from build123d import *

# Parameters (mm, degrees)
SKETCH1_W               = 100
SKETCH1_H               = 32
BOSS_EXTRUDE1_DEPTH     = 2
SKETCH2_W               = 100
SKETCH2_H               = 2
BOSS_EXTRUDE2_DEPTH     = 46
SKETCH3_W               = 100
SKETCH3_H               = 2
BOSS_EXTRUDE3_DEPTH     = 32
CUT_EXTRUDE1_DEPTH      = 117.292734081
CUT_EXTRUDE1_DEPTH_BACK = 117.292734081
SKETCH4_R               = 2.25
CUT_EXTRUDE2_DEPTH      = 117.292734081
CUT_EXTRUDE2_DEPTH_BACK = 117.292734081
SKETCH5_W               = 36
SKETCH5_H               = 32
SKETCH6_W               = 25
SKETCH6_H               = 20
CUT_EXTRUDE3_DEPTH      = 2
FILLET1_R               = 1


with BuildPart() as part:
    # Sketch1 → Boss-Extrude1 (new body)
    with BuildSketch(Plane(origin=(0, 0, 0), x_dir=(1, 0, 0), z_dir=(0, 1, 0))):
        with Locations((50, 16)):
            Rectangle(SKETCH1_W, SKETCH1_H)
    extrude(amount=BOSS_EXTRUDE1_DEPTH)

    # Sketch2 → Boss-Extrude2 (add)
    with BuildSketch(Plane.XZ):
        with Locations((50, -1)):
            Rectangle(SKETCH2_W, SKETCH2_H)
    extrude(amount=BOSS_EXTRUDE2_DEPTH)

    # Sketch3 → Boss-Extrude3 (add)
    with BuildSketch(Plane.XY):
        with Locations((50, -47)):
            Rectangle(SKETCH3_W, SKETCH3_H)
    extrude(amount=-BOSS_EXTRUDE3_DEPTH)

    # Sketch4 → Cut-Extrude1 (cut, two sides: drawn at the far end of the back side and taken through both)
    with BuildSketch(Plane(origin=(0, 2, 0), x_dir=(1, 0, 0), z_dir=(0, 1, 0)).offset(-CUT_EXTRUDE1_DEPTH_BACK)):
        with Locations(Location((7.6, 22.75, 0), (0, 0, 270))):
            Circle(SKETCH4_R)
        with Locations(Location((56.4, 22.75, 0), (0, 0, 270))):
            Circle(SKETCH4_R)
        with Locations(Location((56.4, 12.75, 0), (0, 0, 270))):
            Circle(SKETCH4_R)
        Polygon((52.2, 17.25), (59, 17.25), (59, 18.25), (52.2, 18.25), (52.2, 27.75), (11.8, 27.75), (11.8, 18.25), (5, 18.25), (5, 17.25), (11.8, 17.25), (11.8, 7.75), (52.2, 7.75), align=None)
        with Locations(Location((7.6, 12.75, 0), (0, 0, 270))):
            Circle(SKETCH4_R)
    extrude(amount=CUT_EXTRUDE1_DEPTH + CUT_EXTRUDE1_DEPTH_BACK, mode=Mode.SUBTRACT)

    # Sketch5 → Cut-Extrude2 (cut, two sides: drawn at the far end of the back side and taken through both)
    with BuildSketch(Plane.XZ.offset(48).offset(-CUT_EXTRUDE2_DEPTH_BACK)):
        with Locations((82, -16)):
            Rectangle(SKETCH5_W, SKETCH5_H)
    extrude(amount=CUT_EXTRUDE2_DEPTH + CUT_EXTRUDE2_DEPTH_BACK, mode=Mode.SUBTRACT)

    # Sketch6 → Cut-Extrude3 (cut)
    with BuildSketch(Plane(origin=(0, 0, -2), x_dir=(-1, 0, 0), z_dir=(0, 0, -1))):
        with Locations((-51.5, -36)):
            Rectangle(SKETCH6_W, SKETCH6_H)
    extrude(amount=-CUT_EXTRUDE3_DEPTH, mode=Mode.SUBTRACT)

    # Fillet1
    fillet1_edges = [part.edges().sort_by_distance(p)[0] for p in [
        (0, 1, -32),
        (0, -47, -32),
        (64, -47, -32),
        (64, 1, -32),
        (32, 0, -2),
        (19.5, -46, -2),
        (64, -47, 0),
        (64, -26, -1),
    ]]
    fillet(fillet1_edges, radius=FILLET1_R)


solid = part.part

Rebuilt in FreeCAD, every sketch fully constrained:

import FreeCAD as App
import Part
import Sketcher
from FreeCAD import Vector
Q = App.Units.Quantity


def edges_at(feature, points):
    """Names of the edges that pass closest to the given points."""
    edges = feature.Shape.Edges
    near = lambda p: min(range(len(edges)), key=lambda i: edges[i].distToShape(Part.Vertex(*p))[0])
    return sorted({f"Edge{near(p) + 1}" for p in points})


def add_polygon(sketch, points):
    """Adds a closed chain of lines whose ends are joined by coincident constraints."""
    first, n = sketch.GeometryCount, len(points)
    for a, b in zip(points, points[1:] + points[:1]):
        sketch.addGeometry(Part.LineSegment(App.Vector(*a, 0), App.Vector(*b, 0)), False)
    for i in range(n):
        sketch.addConstraint(Sketcher.Constraint("Coincident", first + i, 2, first + (i + 1) % n, 1))

doc = App.newDocument("Part")
params = doc.addObject("Spreadsheet::Sheet", "Params")
for row, (alias, value) in enumerate([
    ("sketch1_width", "100 mm"),
    ("sketch1_height", "32 mm"),
    ("pad1_length", "2 mm"),
    ("sketch2_width", "100 mm"),
    ("sketch2_height", "2 mm"),
    ("pad2_length", "46 mm"),
    ("sketch3_width", "100 mm"),
    ("sketch3_height", "2 mm"),
    ("pad3_length", "32 mm"),
    ("sketch4_diameter", "4.5 mm"),
    ("sketch4_height", "1 mm"),
    ("sketch4_width", "6.8 mm"),
    ("sketch4_width2", "40.4 mm"),
    ("sketch4_height2", "9.5 mm"),
    ("sketch5_width", "36 mm"),
    ("sketch5_height", "32 mm"),
    ("sketch6_width", "25 mm"),
    ("sketch6_height", "20 mm"),
    ("pocket3_length", "2 mm"),
    ("fillet_radius", "1 mm"),
], start=1):
    params.set(f"A{row}", alias)
    params.set(f"B{row}", "=" + value)
    params.setAlias(f"B{row}", alias)

body = doc.addObject("PartDesign::Body", "Body")

sketch1 = doc.addObject("Sketcher::SketchObject", "Sketch")
body.addObject(sketch1)
sketch1.AttachmentSupport = (doc.XZ_Plane, [""])
sketch1.MapMode = "FlatFace"
add_polygon(sketch1, [(0, -32), (0, 0), (100, 0), (100, -32)])
sketch1.addConstraint([
    Sketcher.Constraint("Vertical", 0),
    Sketcher.Constraint("Horizontal", 1),
    Sketcher.Constraint("Vertical", 2),
    Sketcher.Constraint("Horizontal", 3),
    Sketcher.Constraint("Coincident", 0, 2, -1, 1),
    Sketcher.Constraint("DistanceX", 1, 1, 1, 2, Q("100 mm")),
    Sketcher.Constraint("DistanceY", 0, 1, 0, 2, Q("32 mm")),
])
sketch1.setExpression("Constraints[9]", "Params.sketch1_width")
sketch1.setExpression("Constraints[10]", "Params.sketch1_height")
pad1 = doc.addObject("PartDesign::Pad", "Pad")
body.addObject(pad1)
pad1.Profile = sketch1
pad1.setExpression("Length", "Params.pad1_length")
pad1.Reversed = True

sketch2 = doc.addObject("Sketcher::SketchObject", "Sketch001")
body.addObject(sketch2)
sketch2.AttachmentSupport = (doc.XZ_Plane, [""])
sketch2.MapMode = "FlatFace"
add_polygon(sketch2, [(0, 0), (0, -2), (100, -2), (100, 0)])
sketch2.addConstraint([
    Sketcher.Constraint("Vertical", 0),
    Sketcher.Constraint("Horizontal", 1),
    Sketcher.Constraint("Vertical", 2),
    Sketcher.Constraint("Horizontal", 3),
    Sketcher.Constraint("Coincident", 3, 2, -1, 1),
    Sketcher.Constraint("DistanceX", 1, 1, 1, 2, Q("100 mm")),
    Sketcher.Constraint("DistanceY", 0, 2, 0, 1, Q("2 mm")),
])
sketch2.setExpression("Constraints[9]", "Params.sketch2_width")
sketch2.setExpression("Constraints[10]", "Params.sketch2_height")
pad2 = doc.addObject("PartDesign::Pad", "Pad001")
body.addObject(pad2)
pad2.Profile = sketch2
pad2.setExpression("Length", "Params.pad2_length")

sketch3 = doc.addObject("Sketcher::SketchObject", "Sketch002")
body.addObject(sketch3)
sketch3.AttachmentSupport = (doc.XY_Plane, [""])
sketch3.MapMode = "FlatFace"
add_polygon(sketch3, [(0, -46), (0, -48), (100, -48), (100, -46)])
sketch3.addConstraint([
    Sketcher.Constraint("Vertical", 0),
    Sketcher.Constraint("Horizontal", 1),
    Sketcher.Constraint("Vertical", 2),
    Sketcher.Constraint("Horizontal", 3),
    Sketcher.Constraint("PointOnObject", 0, 2, -2),
    Sketcher.Constraint("DistanceX", 1, 1, 1, 2, Q("100 mm")),
    Sketcher.Constraint("DistanceY", 0, 2, 0, 1, Q("2 mm")),
    Sketcher.Constraint("DistanceY", 0, 2, -1, 1, Q("48 mm")),
])
sketch3.setExpression("Constraints[9]", "Params.sketch3_width")
sketch3.setExpression("Constraints[10]", "Params.sketch3_height")
pad3 = doc.addObject("PartDesign::Pad", "Pad002")
body.addObject(pad3)
pad3.Profile = sketch3
pad3.setExpression("Length", "Params.pad3_length")
pad3.Reversed = True

sketch4 = doc.addObject("Sketcher::SketchObject", "Sketch003")
body.addObject(sketch4)
sketch4.AttachmentSupport = (doc.XZ_Plane, [""])
sketch4.MapMode = "FlatFace"
sketch4.AttachmentOffset = App.Placement(Vector(0, 0, -2), App.Rotation())
sketch4.addGeometry(Part.Circle(Vector(7.6, -22.75, 0), Vector(0, 0, 1), 2.25), False)
sketch4.addGeometry(Part.Circle(Vector(56.4, -22.75, 0), Vector(0, 0, 1), 2.25), False)
sketch4.addGeometry(Part.Circle(Vector(56.4, -12.75, 0), Vector(0, 0, 1), 2.25), False)
add_polygon(sketch4, [(52.2, -17.25), (59, -17.25), (59, -18.25), (52.2, -18.25), (52.2, -27.75), (11.8, -27.75), (11.8, -18.25), (5, -18.25), (5, -17.25), (11.8, -17.25), (11.8, -7.75), (52.2, -7.75)])
sketch4.addGeometry(Part.Circle(Vector(7.6, -12.75, 0), Vector(0, 0, 1), 2.25), False)
sketch4.addConstraint([
    Sketcher.Constraint("Horizontal", 3),
    Sketcher.Constraint("Vertical", 4),
    Sketcher.Constraint("Horizontal", 5),
    Sketcher.Constraint("Vertical", 6),
    Sketcher.Constraint("Horizontal", 7),
    Sketcher.Constraint("Vertical", 8),
    Sketcher.Constraint("Horizontal", 9),
    Sketcher.Constraint("Vertical", 10),
    Sketcher.Constraint("Horizontal", 11),
    Sketcher.Constraint("Vertical", 12),
    Sketcher.Constraint("Horizontal", 13),
    Sketcher.Constraint("Vertical", 14),
    Sketcher.Constraint("Equal", 0, 1),
    Sketcher.Constraint("Equal", 1, 2),
    Sketcher.Constraint("Equal", 2, 15),
    Sketcher.Constraint("Horizontal", 0, 3, 1, 3),
    Sketcher.Constraint("Horizontal", 2, 3, 15, 3),
    Sketcher.Constraint("Horizontal", 5, 2, 8, 2),
    Sketcher.Constraint("Horizontal", 3, 2, 10, 2),
    Sketcher.Constraint("Vertical", 1, 3, 2, 3),
    Sketcher.Constraint("Vertical", 0, 3, 15, 3),
    Sketcher.Constraint("Vertical", 8, 2, 11, 2),
    Sketcher.Constraint("Vertical", 6, 2, 13, 2),
    Sketcher.Constraint("Equal", 5, 9),
    Sketcher.Constraint("Equal", 8, 12),
    Sketcher.Constraint("Diameter", 0, Q("4.5 mm")),
    Sketcher.Constraint("DistanceY", 4, 2, 4, 1, Q("1 mm")),
    Sketcher.Constraint("DistanceX", 3, 1, 3, 2, Q("6.8 mm")),
    Sketcher.Constraint("DistanceX", 7, 2, 7, 1, Q("40.4 mm")),
    Sketcher.Constraint("DistanceY", 6, 2, 6, 1, Q("9.5 mm")),
    Sketcher.Constraint("DistanceX", -1, 1, 3, 2, Q("59 mm")),
    Sketcher.Constraint("DistanceY", 1, 3, 2, 3, Q("10 mm")),
    Sketcher.Constraint("DistanceY", 6, 2, 1, 3, Q("5 mm")),
    Sketcher.Constraint("DistanceX", -1, 1, 0, 3, Q("7.6 mm")),
    Sketcher.Constraint("DistanceX", -1, 1, 1, 3, Q("56.4 mm")),
    Sketcher.Constraint("DistanceY", 0, 3, -1, 1, Q("22.75 mm")),
])
sketch4.setExpression("Constraints[37]", "Params.sketch4_diameter")
sketch4.setExpression("Constraints[38]", "Params.sketch4_height")
sketch4.setExpression("Constraints[39]", "Params.sketch4_width")
sketch4.setExpression("Constraints[40]", "Params.sketch4_width2")
sketch4.setExpression("Constraints[41]", "Params.sketch4_height2")
pocket1 = doc.addObject("PartDesign::Pocket", "Pocket")
body.addObject(pocket1)
pocket1.Profile = sketch4
pocket1.Type = "ThroughAll"
pocket1.Midplane = True

sketch5 = doc.addObject("Sketcher::SketchObject", "Sketch004")
body.addObject(sketch5)
sketch5.AttachmentSupport = (doc.XZ_Plane, [""])
sketch5.MapMode = "FlatFace"
sketch5.AttachmentOffset = App.Placement(Vector(0, 0, 48), App.Rotation())
add_polygon(sketch5, [(64, 0), (64, -32), (100, -32), (100, 0)])
sketch5.addConstraint([
    Sketcher.Constraint("Vertical", 0),
    Sketcher.Constraint("Horizontal", 1),
    Sketcher.Constraint("Vertical", 2),
    Sketcher.Constraint("Horizontal", 3),
    Sketcher.Constraint("PointOnObject", 2, 2, -1),
    Sketcher.Constraint("DistanceX", 1, 1, 1, 2, Q("36 mm")),
    Sketcher.Constraint("DistanceY", 0, 2, 0, 1, Q("32 mm")),
    Sketcher.Constraint("DistanceX", -1, 1, 0, 2, Q("64 mm")),
])
sketch5.setExpression("Constraints[9]", "Params.sketch5_width")
sketch5.setExpression("Constraints[10]", "Params.sketch5_height")
pocket2 = doc.addObject("PartDesign::Pocket", "Pocket001")
body.addObject(pocket2)
pocket2.Profile = sketch5
pocket2.Type = "ThroughAll"
pocket2.Midplane = True

sketch6 = doc.addObject("Sketcher::SketchObject", "Sketch005")
body.addObject(sketch6)
sketch6.AttachmentSupport = (doc.XY_Plane, [""])
sketch6.MapMode = "FlatFace"
sketch6.AttachmentOffset = App.Placement(Vector(0, 0, -2), App.Rotation())
add_polygon(sketch6, [(64, -26), (64, -46), (39, -46), (39, -26)])
sketch6.addConstraint([
    Sketcher.Constraint("Vertical", 0),
    Sketcher.Constraint("Horizontal", 1),
    Sketcher.Constraint("Vertical", 2),
    Sketcher.Constraint("Horizontal", 3),
    Sketcher.Constraint("DistanceX", 1, 2, 1, 1, Q("25 mm")),
    Sketcher.Constraint("DistanceY", 0, 2, 0, 1, Q("20 mm")),
    Sketcher.Constraint("DistanceX", -1, 1, 0, 2, Q("64 mm")),
    Sketcher.Constraint("DistanceY", 0, 2, -1, 1, Q("46 mm")),
])
sketch6.setExpression("Constraints[8]", "Params.sketch6_width")
sketch6.setExpression("Constraints[9]", "Params.sketch6_height")
pocket3 = doc.addObject("PartDesign::Pocket", "Pocket002")
body.addObject(pocket3)
pocket3.Profile = sketch6
pocket3.setExpression("Length", "Params.pocket3_length")
pocket3.Reversed = True
doc.recompute()

fillet = doc.addObject("PartDesign::Fillet", "Fillet")
body.addObject(fillet)
fillet.Base = (pocket3, edges_at(pocket3, [
    (0, 1, -32),
    (0, -47, -32),
    (64, -47, -32),
    (64, 1, -32),
    (32, 0, -2),
    (19.5, -46, -2),
    (64, -47, 0),
    (64, -26, -1),
]))
fillet.setExpression("Radius", "Params.fillet_radius")

doc.recompute()
